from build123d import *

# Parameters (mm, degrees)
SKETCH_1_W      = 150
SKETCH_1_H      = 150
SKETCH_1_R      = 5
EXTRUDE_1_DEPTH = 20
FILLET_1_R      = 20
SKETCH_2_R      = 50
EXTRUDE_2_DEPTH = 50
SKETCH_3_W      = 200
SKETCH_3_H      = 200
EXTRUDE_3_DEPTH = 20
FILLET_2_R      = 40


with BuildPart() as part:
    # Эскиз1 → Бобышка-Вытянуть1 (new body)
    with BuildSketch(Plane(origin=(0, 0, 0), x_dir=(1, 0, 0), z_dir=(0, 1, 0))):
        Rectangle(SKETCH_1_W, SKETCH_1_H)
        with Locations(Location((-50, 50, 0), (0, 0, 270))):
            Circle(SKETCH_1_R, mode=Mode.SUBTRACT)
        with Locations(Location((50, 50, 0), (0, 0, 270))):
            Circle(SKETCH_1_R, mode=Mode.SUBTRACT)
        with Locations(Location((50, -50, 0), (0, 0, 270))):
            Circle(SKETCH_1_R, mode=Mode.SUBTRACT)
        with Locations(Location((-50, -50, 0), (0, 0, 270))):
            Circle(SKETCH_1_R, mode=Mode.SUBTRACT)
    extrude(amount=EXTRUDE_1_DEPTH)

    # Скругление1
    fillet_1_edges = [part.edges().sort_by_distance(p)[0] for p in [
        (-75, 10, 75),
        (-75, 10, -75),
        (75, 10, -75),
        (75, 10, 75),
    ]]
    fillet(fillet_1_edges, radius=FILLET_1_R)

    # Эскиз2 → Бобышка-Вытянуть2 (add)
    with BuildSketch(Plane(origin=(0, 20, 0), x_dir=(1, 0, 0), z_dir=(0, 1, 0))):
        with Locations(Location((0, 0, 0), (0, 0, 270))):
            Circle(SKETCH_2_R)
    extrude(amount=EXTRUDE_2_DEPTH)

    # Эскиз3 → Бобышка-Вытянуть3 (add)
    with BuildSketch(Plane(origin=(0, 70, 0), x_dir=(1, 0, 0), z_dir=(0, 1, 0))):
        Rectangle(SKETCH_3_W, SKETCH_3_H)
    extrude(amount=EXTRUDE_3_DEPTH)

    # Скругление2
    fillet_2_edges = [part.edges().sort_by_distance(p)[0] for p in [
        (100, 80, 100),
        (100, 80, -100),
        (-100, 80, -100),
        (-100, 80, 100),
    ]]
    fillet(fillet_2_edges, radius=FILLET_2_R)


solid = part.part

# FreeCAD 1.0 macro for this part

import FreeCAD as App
import Part
import Sketcher
from FreeCAD import Vector


def edges_at(feature, points):
    """Names of the edges that pass closest to the given points."""
    edges = feature.Shape.Edges
    near = lambda p: min(range(len(edges)), key=lambda i: edges[i].distToShape(Part.Vertex(*p))[0])
    return sorted({f"Edge{near(p) + 1}" for p in points})

doc = App.newDocument("Part")
body = doc.addObject("PartDesign::Body", "Body")

# Sketch on XZ plane
sketch1 = doc.addObject("Sketcher::SketchObject", "Sketch")
body.addObject(sketch1)
sketch1.AttachmentSupport = (doc.XZ_Plane, [""])
sketch1.MapMode = "FlatFace"
sketch1.addGeometry([
    Part.LineSegment(Vector(-75, -75, 0), Vector(-75, 75, 0)),  # 0
    Part.LineSegment(Vector(-75, 75, 0), Vector(75, 75, 0)),  # 1
    Part.LineSegment(Vector(75, 75, 0), Vector(75, -75, 0)),  # 2
    Part.LineSegment(Vector(75, -75, 0), Vector(-75, -75, 0)),  # 3
    Part.Circle(Vector(-50, 50, 0), Vector(0, 0, 1), 5),  # 4
    Part.Circle(Vector(50, 50, 0), Vector(0, 0, 1), 5),  # 5
    Part.Circle(Vector(-50, -50, 0), Vector(0, 0, 1), 5),  # 6
    Part.Circle(Vector(50, -50, 0), Vector(0, 0, 1), 5),  # 7
], False)
sketch1.addConstraint([
    Sketcher.Constraint("Coincident", 0, 2, 1, 1),
    Sketcher.Constraint("Coincident", 1, 2, 2, 1),
    Sketcher.Constraint("Coincident", 2, 2, 3, 1),
    Sketcher.Constraint("Coincident", 3, 2, 0, 1),
    Sketcher.Constraint("Vertical", 0),
    Sketcher.Constraint("Horizontal", 1),
    Sketcher.Constraint("Vertical", 2),
    Sketcher.Constraint("Horizontal", 3),
    Sketcher.Constraint("Equal", 4, 5),
    Sketcher.Constraint("Equal", 5, 6),
    Sketcher.Constraint("Equal", 6, 7),
    Sketcher.Constraint("Symmetric", 5, 3, 6, 3, -1, 1),
    Sketcher.Constraint("Symmetric", 4, 3, 7, 3, -1, 1),
    Sketcher.Constraint("Symmetric", 0, 2, 2, 2, -1, 1),
    Sketcher.Constraint("Symmetric", 4, 3, 5, 3, -2),
    Sketcher.Constraint("Equal", 3, 0),
    Sketcher.Constraint("Diameter", 4, 10.0),
    Sketcher.Constraint("DistanceX", 1, 1, 1, 2, 150.0),
    Sketcher.Constraint("DistanceX", 4, 3, -1, 1, 50.0),
    Sketcher.Constraint("DistanceY", -1, 1, 4, 3, 50.0),
])
pad1 = doc.addObject("PartDesign::Pad", "Pad")
body.addObject(pad1)
pad1.Profile = sketch1
pad1.Length = 20
pad1.Reversed = True
doc.recompute()

fillet = doc.addObject("PartDesign::Fillet", "Fillet")
body.addObject(fillet)
fillet.Base = (pad1, edges_at(pad1, [
    (-75, 10, 75),
    (-75, 10, -75),
    (75, 10, -75),
    (75, 10, 75),
]))
fillet.Radius = 20

# Sketch on XZ plane
sketch2 = doc.addObject("Sketcher::SketchObject", "Sketch001")
body.addObject(sketch2)
sketch2.AttachmentSupport = (doc.XZ_Plane, [""])
sketch2.MapMode = "FlatFace"
sketch2.AttachmentOffset = App.Placement(Vector(0, 0, -20), App.Rotation())
sketch2.addGeometry(Part.Circle(Vector(0, 0, 0), Vector(0, 0, 1), 50), False)
sketch2.addConstraint([
    Sketcher.Constraint("Coincident", 0, 3, -1, 1),
    Sketcher.Constraint("Diameter", 0, 100.0),
])
pad2 = doc.addObject("PartDesign::Pad", "Pad001")
body.addObject(pad2)
pad2.Profile = sketch2
pad2.Length = 50
pad2.Reversed = True

# Sketch on XZ plane
sketch3 = doc.addObject("Sketcher::SketchObject", "Sketch002")
body.addObject(sketch3)
sketch3.AttachmentSupport = (doc.XZ_Plane, [""])
sketch3.MapMode = "FlatFace"
sketch3.AttachmentOffset = App.Placement(Vector(0, 0, -70), App.Rotation())
sketch3.addGeometry([
    Part.LineSegment(Vector(-100, -100, 0), Vector(-100, 100, 0)),
    Part.LineSegment(Vector(-100, 100, 0), Vector(100, 100, 0)),
    Part.LineSegment(Vector(100, 100, 0), Vector(100, -100, 0)),
    Part.LineSegment(Vector(100, -100, 0), Vector(-100, -100, 0)),
], False)
sketch3.addConstraint([
    Sketcher.Constraint("Coincident", 0, 2, 1, 1),
    Sketcher.Constraint("Coincident", 1, 2, 2, 1),
    Sketcher.Constraint("Coincident", 2, 2, 3, 1),
    Sketcher.Constraint("Coincident", 3, 2, 0, 1),
    Sketcher.Constraint("Vertical", 0),
    Sketcher.Constraint("Horizontal", 1),
    Sketcher.Constraint("Vertical", 2),
    Sketcher.Constraint("Horizontal", 3),
    Sketcher.Constraint("Symmetric", 0, 2, 2, 2, -1, 1),
    Sketcher.Constraint("Equal", 3, 0),
    Sketcher.Constraint("DistanceX", 1, 1, 1, 2, 200.0),
])
pad3 = doc.addObject("PartDesign::Pad", "Pad002")
body.addObject(pad3)
pad3.Profile = sketch3
pad3.Length = 20
pad3.Reversed = True
doc.recompute()

fillet2 = doc.addObject("PartDesign::Fillet", "Fillet001")
body.addObject(fillet2)
fillet2.Base = (pad3, edges_at(pad3, [
    (100, 80, 100),
    (100, 80, -100),
    (-100, 80, -100),
    (-100, 80, 100),
]))
fillet2.Radius = 40

doc.recompute()
